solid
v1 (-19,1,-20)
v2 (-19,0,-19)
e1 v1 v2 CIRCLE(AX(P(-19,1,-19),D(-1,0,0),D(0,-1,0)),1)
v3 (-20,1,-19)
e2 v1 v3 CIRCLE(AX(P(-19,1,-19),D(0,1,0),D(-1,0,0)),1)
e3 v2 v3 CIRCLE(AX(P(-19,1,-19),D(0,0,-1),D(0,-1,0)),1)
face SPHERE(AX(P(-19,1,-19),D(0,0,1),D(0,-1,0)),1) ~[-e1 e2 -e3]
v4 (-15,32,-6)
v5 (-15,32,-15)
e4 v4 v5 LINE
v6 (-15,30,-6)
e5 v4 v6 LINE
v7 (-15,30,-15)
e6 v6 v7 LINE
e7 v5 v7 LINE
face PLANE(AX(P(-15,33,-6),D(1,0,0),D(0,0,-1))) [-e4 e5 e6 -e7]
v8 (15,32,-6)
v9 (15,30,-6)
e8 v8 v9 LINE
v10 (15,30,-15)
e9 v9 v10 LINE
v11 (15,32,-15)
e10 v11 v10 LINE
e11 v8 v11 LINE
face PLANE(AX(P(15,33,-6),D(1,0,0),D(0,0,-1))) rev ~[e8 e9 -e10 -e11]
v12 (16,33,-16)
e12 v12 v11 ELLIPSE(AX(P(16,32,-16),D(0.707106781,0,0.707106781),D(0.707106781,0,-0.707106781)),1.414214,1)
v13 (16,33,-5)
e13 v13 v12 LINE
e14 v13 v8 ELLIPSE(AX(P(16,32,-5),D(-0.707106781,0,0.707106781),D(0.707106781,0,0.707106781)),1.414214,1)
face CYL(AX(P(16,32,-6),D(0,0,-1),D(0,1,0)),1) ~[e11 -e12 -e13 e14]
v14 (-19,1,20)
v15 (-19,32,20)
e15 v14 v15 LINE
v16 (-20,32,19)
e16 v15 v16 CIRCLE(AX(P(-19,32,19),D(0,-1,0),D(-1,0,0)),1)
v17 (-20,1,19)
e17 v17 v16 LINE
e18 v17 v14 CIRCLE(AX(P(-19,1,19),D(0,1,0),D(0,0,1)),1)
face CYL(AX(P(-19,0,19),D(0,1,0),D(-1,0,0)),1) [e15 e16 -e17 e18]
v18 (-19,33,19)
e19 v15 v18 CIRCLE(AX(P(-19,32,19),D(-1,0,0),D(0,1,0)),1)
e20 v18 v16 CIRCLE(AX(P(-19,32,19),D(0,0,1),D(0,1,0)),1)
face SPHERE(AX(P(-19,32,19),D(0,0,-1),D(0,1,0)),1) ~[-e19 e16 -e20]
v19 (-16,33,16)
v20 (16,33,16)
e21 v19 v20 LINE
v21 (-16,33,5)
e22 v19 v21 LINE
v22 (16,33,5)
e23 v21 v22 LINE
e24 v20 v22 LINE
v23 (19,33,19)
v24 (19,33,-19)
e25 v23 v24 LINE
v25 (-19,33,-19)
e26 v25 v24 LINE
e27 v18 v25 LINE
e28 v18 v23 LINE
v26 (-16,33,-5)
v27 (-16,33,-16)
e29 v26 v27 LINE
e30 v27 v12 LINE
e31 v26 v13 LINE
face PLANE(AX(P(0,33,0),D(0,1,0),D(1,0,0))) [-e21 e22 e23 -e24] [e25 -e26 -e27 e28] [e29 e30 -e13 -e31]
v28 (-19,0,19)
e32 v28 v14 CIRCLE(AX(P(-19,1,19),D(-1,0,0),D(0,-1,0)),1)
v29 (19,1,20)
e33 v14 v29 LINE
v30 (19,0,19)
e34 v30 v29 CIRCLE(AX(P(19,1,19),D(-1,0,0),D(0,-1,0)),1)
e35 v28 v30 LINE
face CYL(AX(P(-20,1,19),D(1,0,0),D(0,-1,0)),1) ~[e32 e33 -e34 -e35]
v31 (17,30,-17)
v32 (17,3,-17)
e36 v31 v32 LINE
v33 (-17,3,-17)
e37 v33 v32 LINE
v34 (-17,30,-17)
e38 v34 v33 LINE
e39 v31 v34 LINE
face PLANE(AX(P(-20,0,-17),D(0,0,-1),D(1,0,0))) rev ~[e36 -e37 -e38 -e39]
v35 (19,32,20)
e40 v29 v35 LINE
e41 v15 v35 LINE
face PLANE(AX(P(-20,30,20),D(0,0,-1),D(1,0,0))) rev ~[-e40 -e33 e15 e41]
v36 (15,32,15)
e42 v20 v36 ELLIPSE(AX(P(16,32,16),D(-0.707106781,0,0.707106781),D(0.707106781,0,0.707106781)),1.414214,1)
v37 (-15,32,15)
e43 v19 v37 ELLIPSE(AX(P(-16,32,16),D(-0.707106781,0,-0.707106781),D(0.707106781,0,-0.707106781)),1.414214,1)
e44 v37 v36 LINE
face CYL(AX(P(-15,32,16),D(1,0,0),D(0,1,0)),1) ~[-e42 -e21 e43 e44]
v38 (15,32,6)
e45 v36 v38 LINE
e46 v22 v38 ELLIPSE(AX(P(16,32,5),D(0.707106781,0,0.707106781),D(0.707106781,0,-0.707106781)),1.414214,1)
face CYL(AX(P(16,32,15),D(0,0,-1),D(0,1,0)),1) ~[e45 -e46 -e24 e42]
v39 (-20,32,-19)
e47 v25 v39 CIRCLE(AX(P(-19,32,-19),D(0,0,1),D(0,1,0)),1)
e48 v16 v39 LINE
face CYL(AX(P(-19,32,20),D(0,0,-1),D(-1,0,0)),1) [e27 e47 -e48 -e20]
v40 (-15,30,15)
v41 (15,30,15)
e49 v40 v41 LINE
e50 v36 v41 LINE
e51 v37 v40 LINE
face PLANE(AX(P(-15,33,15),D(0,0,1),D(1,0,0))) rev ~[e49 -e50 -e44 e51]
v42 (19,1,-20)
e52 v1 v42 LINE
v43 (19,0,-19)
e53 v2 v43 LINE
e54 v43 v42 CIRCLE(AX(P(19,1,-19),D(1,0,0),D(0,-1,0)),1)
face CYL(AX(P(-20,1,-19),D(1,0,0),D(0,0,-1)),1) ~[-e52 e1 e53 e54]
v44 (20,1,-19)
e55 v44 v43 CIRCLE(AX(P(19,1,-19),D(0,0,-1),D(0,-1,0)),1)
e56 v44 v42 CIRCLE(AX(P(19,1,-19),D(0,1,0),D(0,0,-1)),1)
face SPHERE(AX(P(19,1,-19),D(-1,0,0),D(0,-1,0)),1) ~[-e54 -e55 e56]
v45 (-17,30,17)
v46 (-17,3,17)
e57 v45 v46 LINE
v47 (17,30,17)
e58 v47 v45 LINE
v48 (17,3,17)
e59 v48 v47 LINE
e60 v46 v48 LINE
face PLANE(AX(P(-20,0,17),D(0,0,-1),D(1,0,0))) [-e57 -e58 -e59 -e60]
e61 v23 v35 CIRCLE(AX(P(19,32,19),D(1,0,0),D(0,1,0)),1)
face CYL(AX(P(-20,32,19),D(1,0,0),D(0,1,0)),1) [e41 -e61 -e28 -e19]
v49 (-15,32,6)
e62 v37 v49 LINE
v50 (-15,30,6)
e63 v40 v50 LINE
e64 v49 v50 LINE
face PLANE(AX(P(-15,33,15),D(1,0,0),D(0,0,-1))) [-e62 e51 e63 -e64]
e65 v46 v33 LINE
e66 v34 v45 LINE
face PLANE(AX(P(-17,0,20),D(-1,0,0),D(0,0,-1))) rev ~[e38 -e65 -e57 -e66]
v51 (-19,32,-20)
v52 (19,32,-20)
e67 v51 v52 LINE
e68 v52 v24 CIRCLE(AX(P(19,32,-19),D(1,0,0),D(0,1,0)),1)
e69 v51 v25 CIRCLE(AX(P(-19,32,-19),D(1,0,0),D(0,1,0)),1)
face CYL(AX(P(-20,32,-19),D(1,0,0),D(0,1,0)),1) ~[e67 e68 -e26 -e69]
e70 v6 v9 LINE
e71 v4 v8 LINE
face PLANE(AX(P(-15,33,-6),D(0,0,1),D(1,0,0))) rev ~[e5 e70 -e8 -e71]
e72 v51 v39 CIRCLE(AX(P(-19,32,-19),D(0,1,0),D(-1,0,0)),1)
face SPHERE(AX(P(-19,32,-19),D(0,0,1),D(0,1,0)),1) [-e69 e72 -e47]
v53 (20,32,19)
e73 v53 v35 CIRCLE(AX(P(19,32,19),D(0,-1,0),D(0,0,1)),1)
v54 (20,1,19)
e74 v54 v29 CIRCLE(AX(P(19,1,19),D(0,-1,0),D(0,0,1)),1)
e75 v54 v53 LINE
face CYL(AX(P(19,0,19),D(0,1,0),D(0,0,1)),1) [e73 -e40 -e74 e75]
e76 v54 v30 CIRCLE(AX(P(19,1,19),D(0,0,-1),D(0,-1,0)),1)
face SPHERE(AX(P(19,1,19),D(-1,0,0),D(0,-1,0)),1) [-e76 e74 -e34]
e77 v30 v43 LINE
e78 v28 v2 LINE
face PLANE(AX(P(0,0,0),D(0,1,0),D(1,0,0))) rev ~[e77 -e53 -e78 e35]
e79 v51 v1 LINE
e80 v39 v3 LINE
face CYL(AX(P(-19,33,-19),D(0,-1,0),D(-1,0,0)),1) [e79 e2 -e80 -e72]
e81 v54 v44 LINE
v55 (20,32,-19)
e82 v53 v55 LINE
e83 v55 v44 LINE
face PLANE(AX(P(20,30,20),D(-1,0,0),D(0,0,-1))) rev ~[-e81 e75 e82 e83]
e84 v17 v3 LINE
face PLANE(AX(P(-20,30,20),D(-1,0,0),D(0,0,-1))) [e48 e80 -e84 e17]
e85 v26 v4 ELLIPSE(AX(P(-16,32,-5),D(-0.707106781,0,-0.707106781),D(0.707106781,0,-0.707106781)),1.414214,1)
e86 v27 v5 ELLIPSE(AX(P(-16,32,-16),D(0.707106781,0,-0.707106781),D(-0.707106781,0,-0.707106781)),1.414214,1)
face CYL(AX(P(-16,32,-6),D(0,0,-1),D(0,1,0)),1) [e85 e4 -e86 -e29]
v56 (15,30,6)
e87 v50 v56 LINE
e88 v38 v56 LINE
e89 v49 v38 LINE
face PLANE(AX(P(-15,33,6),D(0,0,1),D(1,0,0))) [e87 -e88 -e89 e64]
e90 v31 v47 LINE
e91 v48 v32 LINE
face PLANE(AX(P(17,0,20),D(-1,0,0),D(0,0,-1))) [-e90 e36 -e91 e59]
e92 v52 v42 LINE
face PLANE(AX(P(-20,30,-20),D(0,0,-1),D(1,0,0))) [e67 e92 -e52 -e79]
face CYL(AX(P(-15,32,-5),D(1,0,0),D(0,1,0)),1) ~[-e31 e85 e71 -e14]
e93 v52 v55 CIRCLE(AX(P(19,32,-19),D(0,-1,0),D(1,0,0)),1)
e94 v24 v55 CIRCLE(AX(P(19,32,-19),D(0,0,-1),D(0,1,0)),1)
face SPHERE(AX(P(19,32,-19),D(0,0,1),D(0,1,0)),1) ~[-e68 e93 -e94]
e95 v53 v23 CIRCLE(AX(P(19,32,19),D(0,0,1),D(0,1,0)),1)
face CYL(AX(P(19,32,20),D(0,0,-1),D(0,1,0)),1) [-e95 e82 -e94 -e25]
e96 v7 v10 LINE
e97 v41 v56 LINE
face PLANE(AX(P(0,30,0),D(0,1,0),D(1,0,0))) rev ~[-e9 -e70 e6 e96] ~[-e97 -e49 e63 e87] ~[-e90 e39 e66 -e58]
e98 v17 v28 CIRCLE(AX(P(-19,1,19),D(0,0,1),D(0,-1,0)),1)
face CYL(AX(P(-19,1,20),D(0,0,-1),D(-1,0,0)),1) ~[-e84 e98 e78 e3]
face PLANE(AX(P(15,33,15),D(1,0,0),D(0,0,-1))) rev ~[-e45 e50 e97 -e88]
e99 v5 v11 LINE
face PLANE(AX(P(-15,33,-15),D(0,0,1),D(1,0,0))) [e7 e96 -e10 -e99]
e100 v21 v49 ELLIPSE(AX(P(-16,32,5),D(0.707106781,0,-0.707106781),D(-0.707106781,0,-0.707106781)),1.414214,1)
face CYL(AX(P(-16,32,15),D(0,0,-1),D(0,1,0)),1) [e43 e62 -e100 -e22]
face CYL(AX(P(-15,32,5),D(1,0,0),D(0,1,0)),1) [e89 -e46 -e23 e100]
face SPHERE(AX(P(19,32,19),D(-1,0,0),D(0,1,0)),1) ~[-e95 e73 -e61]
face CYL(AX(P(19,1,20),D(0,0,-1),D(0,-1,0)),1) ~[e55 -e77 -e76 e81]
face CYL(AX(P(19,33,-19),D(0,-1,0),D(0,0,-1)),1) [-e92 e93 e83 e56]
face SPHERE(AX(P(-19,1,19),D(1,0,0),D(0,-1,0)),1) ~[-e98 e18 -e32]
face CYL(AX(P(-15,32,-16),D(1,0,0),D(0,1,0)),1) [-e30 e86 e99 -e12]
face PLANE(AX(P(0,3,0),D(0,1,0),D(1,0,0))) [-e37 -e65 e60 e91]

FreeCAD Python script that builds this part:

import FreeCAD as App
import Part
import Sketcher

V = App.Vector
Q = App.Units.Quantity


def edges_at(feature, points):
    """Names of the edges that pass closest to the given points."""
    edges = feature.Shape.Edges
    near = lambda p: min(range(len(edges)), key=lambda i: edges[i].distToShape(Part.Vertex(*p))[0])
    return sorted({f"Edge{near(p) + 1}" for p in points})


def faces_at(feature, points):
    """Names of the faces that lie closest to the given points."""
    faces = feature.Shape.Faces
    near = lambda p: min(range(len(faces)), key=lambda i: faces[i].distToShape(Part.Vertex(*p))[0])
    return sorted({f"Face{near(p) + 1}" for p in points})


def add_polygon(sketch, points):
    """Adds a closed chain of lines whose ends are joined by coincident constraints."""
    first, n = sketch.GeometryCount, len(points)
    for a, b in zip(points, points[1:] + points[:1]):
        sketch.addGeometry(Part.LineSegment(App.Vector(*a, 0), App.Vector(*b, 0)), False)
    for i in range(n):
        sketch.addConstraint(Sketcher.Constraint("Coincident", first + i, 2, first + (i + 1) % n, 1))

doc = App.newDocument("Part")
body = doc.addObject("PartDesign::Body", "Body")

sketch1 = doc.addObject("Sketcher::SketchObject", "Sketch")
body.addObject(sketch1)
sketch1.AttachmentSupport = (doc.XZ_Plane, [""])
sketch1.MapMode = "FlatFace"
add_polygon(sketch1, [(-20, -20), (-20, 20), (20, 20), (20, -20)])
sketch1.addConstraint([
    Sketcher.Constraint("Vertical", 0),
    Sketcher.Constraint("Horizontal", 1),
    Sketcher.Constraint("Vertical", 2),
    Sketcher.Constraint("Horizontal", 3),
    Sketcher.Constraint("Symmetric", 0, 2, 2, 2, -1, 1),
    Sketcher.Constraint("Equal", 3, 0),
    Sketcher.Constraint("DistanceX", 1, 1, 1, 2, Q("40 mm")),
])
pad1 = doc.addObject("PartDesign::Pad", "Pad")
body.addObject(pad1)
pad1.Profile = sketch1
pad1.Length = 30
pad1.Reversed = True
doc.recompute()

thickness = doc.addObject("PartDesign::Thickness", "Thickness")
body.addObject(thickness)
thickness.Base = (pad1, faces_at(pad1, [(0, 30, 0)]))
thickness.Value = 3
thickness.Reversed = True
thickness.Join = "Intersection"

sketch2 = doc.addObject("Sketcher::SketchObject", "Sketch001")
body.addObject(sketch2)
sketch2.AttachmentSupport = (doc.XZ_Plane, [""])
sketch2.MapMode = "FlatFace"
sketch2.AttachmentOffset = App.Placement(V(0, 0, -30), App.Rotation())
add_polygon(sketch2, [(-20, -20), (-20, 20), (20, 20), (20, -20)])
sketch2.addConstraint([
    Sketcher.Constraint("Vertical", 0),
    Sketcher.Constraint("Horizontal", 1),
    Sketcher.Constraint("Vertical", 2),
    Sketcher.Constraint("Horizontal", 3),
    Sketcher.Constraint("Symmetric", 0, 2, 2, 2, -1, 1),
    Sketcher.Constraint("Equal", 3, 0),
    Sketcher.Constraint("DistanceX", 1, 1, 1, 2, Q("40 mm")),
])
pad2 = doc.addObject("PartDesign::Pad", "Pad001")
body.addObject(pad2)
pad2.Profile = sketch2
pad2.Length = 3
pad2.Reversed = True

sketch3 = doc.addObject("Sketcher::SketchObject", "Sketch002")
body.addObject(sketch3)
sketch3.AttachmentSupport = (doc.XZ_Plane, [""])
sketch3.MapMode = "FlatFace"
sketch3.AttachmentOffset = App.Placement(V(0, 0, -33), App.Rotation())
add_polygon(sketch3, [(-15, 6), (-15, 15), (15, 15), (15, 6)])
add_polygon(sketch3, [(-15, -15), (-15, -6), (15, -6), (15, -15)])
sketch3.addConstraint([
    Sketcher.Constraint("Vertical", 0),
    Sketcher.Constraint("Horizontal", 1),
    Sketcher.Constraint("Vertical", 2),
    Sketcher.Constraint("Horizontal", 3),
    Sketcher.Constraint("Vertical", 4),
    Sketcher.Constraint("Horizontal", 5),
    Sketcher.Constraint("Vertical", 6),
    Sketcher.Constraint("Horizontal", 7),
    Sketcher.Constraint("Symmetric", 2, 2, 4, 2, -1, 1),
    Sketcher.Constraint("Symmetric", 0, 2, 6, 2, -1, 1),
    Sketcher.Constraint("Vertical", 3, 2, 4, 2),
    Sketcher.Constraint("DistanceX", 1, 1, 1, 2, Q("30 mm")),
    Sketcher.Constraint("DistanceY", 0, 1, 0, 2, Q("9 mm")),
    Sketcher.Constraint("DistanceY", -1, 1, 0, 2, Q("15 mm")),
])
pocket1 = doc.addObject("PartDesign::Pocket", "Pocket")
body.addObject(pocket1)
pocket1.Profile = sketch3
pocket1.Length = 3
pocket1.Reversed = True
doc.recompute()

fillet = doc.addObject("PartDesign::Fillet", "Fillet")
body.addObject(fillet)
fillet.Base = (pocket1, edges_at(pocket1, [
    (-20, 33, 0),
    (0, 33, 20),
    (20, 33, 0),
    (0, 33, -20),
    (0, 0, 20),
    (-15, 33, 10.5),
    (0, 33, 15),
    (15, 33, 10.5),
    (0, 33, 6),
    (-20, 0, 0),
    (-15, 33, -10.5),
    (0, 33, -6),
    (15, 33, -10.5),
    (0, 0, -20),
    (0, 33, -15),
    (20, 0, 0),
    (20, 16.5, 20),
    (-20, 16.5, 20),
    (-20, 16.5, -20),
    (20, 16.5, -20),
]))
fillet.Radius = 1

doc.recompute()
